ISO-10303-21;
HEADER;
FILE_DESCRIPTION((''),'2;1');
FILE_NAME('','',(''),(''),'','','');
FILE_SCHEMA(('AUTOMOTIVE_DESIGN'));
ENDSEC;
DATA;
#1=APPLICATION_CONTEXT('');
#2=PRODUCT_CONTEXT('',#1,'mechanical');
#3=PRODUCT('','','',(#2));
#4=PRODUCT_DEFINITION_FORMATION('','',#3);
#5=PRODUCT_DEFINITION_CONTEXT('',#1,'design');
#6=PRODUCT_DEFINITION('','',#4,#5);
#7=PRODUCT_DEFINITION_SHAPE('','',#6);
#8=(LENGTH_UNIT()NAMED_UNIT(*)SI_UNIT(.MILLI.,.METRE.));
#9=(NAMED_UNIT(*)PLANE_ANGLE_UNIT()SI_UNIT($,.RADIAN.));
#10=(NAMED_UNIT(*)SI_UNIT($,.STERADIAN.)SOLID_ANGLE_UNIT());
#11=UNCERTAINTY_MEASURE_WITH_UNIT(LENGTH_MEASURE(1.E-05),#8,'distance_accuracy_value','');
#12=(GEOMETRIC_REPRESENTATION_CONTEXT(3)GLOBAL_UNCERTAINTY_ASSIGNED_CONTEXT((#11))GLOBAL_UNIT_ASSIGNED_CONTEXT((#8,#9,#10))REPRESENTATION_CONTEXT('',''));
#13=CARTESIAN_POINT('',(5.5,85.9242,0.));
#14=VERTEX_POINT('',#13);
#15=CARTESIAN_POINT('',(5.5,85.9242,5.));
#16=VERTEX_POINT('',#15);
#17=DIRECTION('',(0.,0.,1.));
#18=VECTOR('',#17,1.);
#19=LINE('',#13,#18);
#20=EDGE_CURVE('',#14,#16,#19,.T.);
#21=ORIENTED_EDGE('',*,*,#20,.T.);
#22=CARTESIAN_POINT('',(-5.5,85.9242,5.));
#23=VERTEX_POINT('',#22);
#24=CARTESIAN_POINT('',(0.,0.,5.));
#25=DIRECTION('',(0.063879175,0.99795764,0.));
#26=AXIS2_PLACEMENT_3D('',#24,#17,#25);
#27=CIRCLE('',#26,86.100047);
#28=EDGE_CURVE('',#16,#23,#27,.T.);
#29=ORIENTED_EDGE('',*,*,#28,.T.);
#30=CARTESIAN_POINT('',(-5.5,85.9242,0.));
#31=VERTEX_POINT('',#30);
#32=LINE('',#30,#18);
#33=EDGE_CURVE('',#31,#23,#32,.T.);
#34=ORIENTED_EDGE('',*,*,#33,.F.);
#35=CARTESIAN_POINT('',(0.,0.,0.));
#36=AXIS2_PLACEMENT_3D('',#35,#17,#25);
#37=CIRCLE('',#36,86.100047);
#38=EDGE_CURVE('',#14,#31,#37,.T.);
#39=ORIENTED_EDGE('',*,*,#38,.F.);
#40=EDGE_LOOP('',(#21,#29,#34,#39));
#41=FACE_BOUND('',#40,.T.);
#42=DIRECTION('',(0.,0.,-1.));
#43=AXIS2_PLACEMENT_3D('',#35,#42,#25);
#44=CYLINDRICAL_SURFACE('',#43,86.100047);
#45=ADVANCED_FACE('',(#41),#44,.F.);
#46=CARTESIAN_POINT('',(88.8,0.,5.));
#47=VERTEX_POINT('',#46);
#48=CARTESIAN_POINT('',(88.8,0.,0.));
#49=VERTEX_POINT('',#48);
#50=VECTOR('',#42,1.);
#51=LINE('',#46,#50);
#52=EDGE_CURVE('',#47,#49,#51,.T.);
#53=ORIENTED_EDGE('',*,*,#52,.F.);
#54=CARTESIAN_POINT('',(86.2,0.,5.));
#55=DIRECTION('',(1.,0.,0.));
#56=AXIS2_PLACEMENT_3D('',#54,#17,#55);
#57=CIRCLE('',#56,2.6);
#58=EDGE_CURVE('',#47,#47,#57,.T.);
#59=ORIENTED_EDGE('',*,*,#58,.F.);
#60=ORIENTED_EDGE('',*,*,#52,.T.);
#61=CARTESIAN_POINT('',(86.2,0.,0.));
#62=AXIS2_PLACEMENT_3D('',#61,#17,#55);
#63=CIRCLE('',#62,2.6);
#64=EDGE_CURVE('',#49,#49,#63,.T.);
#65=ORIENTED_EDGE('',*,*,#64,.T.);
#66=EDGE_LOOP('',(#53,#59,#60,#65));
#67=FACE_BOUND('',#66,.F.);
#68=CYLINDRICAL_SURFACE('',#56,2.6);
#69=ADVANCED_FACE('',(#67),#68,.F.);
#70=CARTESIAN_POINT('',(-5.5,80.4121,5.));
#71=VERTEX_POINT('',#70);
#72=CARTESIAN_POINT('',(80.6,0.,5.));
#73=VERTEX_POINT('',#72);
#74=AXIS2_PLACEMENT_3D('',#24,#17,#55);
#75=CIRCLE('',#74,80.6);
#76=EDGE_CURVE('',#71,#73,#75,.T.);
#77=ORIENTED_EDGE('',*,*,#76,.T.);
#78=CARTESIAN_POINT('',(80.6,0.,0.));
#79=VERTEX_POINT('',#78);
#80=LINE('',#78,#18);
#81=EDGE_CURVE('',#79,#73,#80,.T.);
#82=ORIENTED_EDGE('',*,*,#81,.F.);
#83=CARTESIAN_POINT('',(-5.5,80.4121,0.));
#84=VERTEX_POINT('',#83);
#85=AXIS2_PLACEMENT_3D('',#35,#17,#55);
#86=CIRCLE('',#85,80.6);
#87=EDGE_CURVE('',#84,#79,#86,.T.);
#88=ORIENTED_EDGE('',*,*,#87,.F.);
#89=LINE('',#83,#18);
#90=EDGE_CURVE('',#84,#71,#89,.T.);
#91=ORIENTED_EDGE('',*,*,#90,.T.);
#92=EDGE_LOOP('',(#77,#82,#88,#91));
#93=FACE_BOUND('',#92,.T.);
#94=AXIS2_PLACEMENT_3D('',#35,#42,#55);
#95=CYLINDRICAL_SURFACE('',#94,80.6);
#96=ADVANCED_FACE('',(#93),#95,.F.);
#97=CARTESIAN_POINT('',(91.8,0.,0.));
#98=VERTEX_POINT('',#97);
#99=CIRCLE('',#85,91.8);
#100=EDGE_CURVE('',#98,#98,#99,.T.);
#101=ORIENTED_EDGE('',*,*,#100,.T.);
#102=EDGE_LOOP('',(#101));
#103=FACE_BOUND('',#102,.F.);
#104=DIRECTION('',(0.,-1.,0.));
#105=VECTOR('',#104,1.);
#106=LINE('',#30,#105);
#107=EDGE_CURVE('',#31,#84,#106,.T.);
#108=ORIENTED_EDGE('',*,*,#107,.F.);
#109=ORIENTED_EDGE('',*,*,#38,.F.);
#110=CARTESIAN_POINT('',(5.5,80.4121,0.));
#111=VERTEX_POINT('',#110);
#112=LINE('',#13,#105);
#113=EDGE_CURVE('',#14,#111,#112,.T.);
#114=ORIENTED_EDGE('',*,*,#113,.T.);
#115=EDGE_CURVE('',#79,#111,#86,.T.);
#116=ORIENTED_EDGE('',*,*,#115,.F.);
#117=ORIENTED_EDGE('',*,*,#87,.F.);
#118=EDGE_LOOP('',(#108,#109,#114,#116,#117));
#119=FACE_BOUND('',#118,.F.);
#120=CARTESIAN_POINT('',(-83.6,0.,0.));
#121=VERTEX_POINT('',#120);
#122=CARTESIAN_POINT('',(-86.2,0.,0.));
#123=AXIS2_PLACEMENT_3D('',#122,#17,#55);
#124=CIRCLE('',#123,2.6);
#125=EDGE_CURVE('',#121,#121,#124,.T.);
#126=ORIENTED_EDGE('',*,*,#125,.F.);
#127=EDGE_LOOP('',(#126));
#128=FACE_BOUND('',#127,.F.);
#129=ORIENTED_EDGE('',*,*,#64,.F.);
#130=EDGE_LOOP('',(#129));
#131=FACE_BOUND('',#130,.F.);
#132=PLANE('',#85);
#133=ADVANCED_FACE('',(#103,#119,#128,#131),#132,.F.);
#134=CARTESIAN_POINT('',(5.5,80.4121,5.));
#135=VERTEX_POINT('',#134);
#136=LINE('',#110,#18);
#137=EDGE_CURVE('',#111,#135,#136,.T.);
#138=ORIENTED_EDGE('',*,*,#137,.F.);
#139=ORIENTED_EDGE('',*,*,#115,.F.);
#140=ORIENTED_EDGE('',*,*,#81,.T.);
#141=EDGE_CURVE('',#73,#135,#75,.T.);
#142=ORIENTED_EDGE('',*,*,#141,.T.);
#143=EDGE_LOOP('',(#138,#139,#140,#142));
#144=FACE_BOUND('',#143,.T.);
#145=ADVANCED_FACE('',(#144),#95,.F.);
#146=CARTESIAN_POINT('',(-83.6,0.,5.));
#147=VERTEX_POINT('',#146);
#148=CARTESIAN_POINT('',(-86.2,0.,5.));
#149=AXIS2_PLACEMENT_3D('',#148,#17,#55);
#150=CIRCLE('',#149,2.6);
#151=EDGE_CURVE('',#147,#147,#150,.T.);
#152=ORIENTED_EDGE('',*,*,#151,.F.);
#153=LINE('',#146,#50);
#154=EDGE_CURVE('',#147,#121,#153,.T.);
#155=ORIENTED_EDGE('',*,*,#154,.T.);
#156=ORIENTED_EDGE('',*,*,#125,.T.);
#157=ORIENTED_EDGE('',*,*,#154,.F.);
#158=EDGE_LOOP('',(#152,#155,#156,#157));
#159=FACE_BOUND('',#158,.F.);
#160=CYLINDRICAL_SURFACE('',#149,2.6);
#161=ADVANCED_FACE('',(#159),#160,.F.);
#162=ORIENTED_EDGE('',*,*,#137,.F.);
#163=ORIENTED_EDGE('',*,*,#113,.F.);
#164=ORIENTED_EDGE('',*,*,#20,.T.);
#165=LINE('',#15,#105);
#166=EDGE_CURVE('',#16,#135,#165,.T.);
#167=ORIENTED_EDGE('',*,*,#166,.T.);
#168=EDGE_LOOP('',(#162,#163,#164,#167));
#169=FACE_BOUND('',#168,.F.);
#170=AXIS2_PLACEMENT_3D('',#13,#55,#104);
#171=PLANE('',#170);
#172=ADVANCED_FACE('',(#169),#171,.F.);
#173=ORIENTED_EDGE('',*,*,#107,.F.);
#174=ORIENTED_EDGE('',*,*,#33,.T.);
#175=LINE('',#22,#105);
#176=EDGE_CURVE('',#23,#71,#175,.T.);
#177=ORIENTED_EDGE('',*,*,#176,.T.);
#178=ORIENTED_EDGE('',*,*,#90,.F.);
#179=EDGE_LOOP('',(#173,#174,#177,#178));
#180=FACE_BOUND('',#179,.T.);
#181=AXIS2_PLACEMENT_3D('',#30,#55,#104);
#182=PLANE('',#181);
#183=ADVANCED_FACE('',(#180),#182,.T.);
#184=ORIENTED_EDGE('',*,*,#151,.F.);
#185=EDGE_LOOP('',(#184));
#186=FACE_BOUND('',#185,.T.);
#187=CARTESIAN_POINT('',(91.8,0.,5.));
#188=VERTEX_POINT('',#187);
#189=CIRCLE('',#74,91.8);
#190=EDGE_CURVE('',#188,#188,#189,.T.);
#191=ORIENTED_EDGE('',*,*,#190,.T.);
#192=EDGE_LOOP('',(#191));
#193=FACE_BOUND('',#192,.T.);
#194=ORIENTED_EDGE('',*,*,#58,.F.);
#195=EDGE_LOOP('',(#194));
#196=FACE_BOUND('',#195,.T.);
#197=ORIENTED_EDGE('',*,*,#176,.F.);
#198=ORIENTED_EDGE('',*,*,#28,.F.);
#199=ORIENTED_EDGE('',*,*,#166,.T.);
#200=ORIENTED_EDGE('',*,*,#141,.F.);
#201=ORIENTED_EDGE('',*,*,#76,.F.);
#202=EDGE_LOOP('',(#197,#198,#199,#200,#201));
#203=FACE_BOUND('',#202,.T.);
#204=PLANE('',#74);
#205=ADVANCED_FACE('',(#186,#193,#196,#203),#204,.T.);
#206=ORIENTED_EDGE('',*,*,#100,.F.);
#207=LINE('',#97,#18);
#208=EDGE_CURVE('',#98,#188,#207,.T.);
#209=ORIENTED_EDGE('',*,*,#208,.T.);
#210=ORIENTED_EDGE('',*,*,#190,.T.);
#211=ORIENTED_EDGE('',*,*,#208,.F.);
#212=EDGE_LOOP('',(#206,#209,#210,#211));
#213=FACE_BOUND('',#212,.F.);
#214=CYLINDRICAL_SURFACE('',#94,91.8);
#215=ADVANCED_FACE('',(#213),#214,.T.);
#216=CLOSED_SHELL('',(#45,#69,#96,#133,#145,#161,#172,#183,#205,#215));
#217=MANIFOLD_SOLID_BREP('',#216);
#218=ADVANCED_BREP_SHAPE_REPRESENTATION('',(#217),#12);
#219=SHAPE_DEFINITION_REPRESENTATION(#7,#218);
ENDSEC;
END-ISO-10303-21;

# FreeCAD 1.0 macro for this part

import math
import FreeCAD as App
import Part
import Sketcher

doc = App.newDocument("Part")
body = doc.addObject("PartDesign::Body", "Body")

# Sketch on XY plane
sketch1 = body.newObject("Sketcher::SketchObject", "Sketch")
sketch1.AttachmentSupport = (doc.getObject("XY_Plane"), [""])
sketch1.MapMode = "FlatFace"
sketch1.addGeometry([
    Part.Circle(App.Vector(0, 0, 0), App.Vector(0, 0, 1), 92),  # 0
    Part.ArcOfCircle(Part.Circle(App.Vector(0, 0, 0), App.Vector(0, 0, 1), 81), math.radians(94), math.radians(446)),  # 1
    Part.LineSegment(App.Vector(-6, 80, 0), App.Vector(-6, 86, 0)),  # 2
    Part.ArcOfCircle(Part.Circle(App.Vector(0, 0, 0), App.Vector(0, 0, 1), 86), math.radians(86.34), math.radians(93.66)),  # 3
    Part.LineSegment(App.Vector(6, 86, 0), App.Vector(6, 80, 0)),  # 4
], False)
sketch1.addConstraint([
    Sketcher.Constraint("Coincident", 1, 1, 2, 1),
    Sketcher.Constraint("Coincident", 2, 2, 3, 2),
    Sketcher.Constraint("Coincident", 3, 1, 4, 1),
    Sketcher.Constraint("Coincident", 4, 2, 1, 2),
    Sketcher.Constraint("Vertical", 2),
    Sketcher.Constraint("Vertical", 4),
    Sketcher.Constraint("Coincident", 0, 3, -1, 1),
    Sketcher.Constraint("Coincident", 1, 3, -1, 1),
    Sketcher.Constraint("Coincident", 3, 3, -1, 1),
    Sketcher.Constraint("Horizontal", 2, 2, 3, 1),
    Sketcher.Constraint("DistanceX", 2, 2, 3, 1, 11.0),
    Sketcher.Constraint("Diameter", 0, 183.6),
    Sketcher.Constraint("Radius", 1, 80.6),
    Sketcher.Constraint("Radius", 3, 86.1),
])
pad1 = body.newObject("PartDesign::Pad", "Pad")
pad1.Profile = sketch1
pad1.Length = 5

# Sketch on XY plane
sketch2 = body.newObject("Sketcher::SketchObject", "Sketch001")
sketch2.AttachmentSupport = (doc.getObject("XY_Plane"), [""])
sketch2.MapMode = "FlatFace"
sketch2.AttachmentOffset = App.Placement(App.Vector(0, 0, 5), App.Rotation())
sketch2.addGeometry([
    Part.Circle(App.Vector(-86.2, 0, 0), App.Vector(0, 0, 1), 2.6),
    Part.Circle(App.Vector(86.2, 0, 0), App.Vector(0, 0, 1), 2.6),
], False)
sketch2.addConstraint([
    Sketcher.Constraint("Equal", 0, 1),
    Sketcher.Constraint("Symmetric", 0, 3, 1, 3, -1, 1),
    Sketcher.Constraint("PointOnObject", 0, 3, -1),
    Sketcher.Constraint("Diameter", 0, 5.2),
    Sketcher.Constraint("DistanceX", 0, 3, -1, 1, 86.2),
])
pocket1 = body.newObject("PartDesign::Pocket", "Pocket")
pocket1.Profile = sketch2
pocket1.Length = 5

doc.recompute()
